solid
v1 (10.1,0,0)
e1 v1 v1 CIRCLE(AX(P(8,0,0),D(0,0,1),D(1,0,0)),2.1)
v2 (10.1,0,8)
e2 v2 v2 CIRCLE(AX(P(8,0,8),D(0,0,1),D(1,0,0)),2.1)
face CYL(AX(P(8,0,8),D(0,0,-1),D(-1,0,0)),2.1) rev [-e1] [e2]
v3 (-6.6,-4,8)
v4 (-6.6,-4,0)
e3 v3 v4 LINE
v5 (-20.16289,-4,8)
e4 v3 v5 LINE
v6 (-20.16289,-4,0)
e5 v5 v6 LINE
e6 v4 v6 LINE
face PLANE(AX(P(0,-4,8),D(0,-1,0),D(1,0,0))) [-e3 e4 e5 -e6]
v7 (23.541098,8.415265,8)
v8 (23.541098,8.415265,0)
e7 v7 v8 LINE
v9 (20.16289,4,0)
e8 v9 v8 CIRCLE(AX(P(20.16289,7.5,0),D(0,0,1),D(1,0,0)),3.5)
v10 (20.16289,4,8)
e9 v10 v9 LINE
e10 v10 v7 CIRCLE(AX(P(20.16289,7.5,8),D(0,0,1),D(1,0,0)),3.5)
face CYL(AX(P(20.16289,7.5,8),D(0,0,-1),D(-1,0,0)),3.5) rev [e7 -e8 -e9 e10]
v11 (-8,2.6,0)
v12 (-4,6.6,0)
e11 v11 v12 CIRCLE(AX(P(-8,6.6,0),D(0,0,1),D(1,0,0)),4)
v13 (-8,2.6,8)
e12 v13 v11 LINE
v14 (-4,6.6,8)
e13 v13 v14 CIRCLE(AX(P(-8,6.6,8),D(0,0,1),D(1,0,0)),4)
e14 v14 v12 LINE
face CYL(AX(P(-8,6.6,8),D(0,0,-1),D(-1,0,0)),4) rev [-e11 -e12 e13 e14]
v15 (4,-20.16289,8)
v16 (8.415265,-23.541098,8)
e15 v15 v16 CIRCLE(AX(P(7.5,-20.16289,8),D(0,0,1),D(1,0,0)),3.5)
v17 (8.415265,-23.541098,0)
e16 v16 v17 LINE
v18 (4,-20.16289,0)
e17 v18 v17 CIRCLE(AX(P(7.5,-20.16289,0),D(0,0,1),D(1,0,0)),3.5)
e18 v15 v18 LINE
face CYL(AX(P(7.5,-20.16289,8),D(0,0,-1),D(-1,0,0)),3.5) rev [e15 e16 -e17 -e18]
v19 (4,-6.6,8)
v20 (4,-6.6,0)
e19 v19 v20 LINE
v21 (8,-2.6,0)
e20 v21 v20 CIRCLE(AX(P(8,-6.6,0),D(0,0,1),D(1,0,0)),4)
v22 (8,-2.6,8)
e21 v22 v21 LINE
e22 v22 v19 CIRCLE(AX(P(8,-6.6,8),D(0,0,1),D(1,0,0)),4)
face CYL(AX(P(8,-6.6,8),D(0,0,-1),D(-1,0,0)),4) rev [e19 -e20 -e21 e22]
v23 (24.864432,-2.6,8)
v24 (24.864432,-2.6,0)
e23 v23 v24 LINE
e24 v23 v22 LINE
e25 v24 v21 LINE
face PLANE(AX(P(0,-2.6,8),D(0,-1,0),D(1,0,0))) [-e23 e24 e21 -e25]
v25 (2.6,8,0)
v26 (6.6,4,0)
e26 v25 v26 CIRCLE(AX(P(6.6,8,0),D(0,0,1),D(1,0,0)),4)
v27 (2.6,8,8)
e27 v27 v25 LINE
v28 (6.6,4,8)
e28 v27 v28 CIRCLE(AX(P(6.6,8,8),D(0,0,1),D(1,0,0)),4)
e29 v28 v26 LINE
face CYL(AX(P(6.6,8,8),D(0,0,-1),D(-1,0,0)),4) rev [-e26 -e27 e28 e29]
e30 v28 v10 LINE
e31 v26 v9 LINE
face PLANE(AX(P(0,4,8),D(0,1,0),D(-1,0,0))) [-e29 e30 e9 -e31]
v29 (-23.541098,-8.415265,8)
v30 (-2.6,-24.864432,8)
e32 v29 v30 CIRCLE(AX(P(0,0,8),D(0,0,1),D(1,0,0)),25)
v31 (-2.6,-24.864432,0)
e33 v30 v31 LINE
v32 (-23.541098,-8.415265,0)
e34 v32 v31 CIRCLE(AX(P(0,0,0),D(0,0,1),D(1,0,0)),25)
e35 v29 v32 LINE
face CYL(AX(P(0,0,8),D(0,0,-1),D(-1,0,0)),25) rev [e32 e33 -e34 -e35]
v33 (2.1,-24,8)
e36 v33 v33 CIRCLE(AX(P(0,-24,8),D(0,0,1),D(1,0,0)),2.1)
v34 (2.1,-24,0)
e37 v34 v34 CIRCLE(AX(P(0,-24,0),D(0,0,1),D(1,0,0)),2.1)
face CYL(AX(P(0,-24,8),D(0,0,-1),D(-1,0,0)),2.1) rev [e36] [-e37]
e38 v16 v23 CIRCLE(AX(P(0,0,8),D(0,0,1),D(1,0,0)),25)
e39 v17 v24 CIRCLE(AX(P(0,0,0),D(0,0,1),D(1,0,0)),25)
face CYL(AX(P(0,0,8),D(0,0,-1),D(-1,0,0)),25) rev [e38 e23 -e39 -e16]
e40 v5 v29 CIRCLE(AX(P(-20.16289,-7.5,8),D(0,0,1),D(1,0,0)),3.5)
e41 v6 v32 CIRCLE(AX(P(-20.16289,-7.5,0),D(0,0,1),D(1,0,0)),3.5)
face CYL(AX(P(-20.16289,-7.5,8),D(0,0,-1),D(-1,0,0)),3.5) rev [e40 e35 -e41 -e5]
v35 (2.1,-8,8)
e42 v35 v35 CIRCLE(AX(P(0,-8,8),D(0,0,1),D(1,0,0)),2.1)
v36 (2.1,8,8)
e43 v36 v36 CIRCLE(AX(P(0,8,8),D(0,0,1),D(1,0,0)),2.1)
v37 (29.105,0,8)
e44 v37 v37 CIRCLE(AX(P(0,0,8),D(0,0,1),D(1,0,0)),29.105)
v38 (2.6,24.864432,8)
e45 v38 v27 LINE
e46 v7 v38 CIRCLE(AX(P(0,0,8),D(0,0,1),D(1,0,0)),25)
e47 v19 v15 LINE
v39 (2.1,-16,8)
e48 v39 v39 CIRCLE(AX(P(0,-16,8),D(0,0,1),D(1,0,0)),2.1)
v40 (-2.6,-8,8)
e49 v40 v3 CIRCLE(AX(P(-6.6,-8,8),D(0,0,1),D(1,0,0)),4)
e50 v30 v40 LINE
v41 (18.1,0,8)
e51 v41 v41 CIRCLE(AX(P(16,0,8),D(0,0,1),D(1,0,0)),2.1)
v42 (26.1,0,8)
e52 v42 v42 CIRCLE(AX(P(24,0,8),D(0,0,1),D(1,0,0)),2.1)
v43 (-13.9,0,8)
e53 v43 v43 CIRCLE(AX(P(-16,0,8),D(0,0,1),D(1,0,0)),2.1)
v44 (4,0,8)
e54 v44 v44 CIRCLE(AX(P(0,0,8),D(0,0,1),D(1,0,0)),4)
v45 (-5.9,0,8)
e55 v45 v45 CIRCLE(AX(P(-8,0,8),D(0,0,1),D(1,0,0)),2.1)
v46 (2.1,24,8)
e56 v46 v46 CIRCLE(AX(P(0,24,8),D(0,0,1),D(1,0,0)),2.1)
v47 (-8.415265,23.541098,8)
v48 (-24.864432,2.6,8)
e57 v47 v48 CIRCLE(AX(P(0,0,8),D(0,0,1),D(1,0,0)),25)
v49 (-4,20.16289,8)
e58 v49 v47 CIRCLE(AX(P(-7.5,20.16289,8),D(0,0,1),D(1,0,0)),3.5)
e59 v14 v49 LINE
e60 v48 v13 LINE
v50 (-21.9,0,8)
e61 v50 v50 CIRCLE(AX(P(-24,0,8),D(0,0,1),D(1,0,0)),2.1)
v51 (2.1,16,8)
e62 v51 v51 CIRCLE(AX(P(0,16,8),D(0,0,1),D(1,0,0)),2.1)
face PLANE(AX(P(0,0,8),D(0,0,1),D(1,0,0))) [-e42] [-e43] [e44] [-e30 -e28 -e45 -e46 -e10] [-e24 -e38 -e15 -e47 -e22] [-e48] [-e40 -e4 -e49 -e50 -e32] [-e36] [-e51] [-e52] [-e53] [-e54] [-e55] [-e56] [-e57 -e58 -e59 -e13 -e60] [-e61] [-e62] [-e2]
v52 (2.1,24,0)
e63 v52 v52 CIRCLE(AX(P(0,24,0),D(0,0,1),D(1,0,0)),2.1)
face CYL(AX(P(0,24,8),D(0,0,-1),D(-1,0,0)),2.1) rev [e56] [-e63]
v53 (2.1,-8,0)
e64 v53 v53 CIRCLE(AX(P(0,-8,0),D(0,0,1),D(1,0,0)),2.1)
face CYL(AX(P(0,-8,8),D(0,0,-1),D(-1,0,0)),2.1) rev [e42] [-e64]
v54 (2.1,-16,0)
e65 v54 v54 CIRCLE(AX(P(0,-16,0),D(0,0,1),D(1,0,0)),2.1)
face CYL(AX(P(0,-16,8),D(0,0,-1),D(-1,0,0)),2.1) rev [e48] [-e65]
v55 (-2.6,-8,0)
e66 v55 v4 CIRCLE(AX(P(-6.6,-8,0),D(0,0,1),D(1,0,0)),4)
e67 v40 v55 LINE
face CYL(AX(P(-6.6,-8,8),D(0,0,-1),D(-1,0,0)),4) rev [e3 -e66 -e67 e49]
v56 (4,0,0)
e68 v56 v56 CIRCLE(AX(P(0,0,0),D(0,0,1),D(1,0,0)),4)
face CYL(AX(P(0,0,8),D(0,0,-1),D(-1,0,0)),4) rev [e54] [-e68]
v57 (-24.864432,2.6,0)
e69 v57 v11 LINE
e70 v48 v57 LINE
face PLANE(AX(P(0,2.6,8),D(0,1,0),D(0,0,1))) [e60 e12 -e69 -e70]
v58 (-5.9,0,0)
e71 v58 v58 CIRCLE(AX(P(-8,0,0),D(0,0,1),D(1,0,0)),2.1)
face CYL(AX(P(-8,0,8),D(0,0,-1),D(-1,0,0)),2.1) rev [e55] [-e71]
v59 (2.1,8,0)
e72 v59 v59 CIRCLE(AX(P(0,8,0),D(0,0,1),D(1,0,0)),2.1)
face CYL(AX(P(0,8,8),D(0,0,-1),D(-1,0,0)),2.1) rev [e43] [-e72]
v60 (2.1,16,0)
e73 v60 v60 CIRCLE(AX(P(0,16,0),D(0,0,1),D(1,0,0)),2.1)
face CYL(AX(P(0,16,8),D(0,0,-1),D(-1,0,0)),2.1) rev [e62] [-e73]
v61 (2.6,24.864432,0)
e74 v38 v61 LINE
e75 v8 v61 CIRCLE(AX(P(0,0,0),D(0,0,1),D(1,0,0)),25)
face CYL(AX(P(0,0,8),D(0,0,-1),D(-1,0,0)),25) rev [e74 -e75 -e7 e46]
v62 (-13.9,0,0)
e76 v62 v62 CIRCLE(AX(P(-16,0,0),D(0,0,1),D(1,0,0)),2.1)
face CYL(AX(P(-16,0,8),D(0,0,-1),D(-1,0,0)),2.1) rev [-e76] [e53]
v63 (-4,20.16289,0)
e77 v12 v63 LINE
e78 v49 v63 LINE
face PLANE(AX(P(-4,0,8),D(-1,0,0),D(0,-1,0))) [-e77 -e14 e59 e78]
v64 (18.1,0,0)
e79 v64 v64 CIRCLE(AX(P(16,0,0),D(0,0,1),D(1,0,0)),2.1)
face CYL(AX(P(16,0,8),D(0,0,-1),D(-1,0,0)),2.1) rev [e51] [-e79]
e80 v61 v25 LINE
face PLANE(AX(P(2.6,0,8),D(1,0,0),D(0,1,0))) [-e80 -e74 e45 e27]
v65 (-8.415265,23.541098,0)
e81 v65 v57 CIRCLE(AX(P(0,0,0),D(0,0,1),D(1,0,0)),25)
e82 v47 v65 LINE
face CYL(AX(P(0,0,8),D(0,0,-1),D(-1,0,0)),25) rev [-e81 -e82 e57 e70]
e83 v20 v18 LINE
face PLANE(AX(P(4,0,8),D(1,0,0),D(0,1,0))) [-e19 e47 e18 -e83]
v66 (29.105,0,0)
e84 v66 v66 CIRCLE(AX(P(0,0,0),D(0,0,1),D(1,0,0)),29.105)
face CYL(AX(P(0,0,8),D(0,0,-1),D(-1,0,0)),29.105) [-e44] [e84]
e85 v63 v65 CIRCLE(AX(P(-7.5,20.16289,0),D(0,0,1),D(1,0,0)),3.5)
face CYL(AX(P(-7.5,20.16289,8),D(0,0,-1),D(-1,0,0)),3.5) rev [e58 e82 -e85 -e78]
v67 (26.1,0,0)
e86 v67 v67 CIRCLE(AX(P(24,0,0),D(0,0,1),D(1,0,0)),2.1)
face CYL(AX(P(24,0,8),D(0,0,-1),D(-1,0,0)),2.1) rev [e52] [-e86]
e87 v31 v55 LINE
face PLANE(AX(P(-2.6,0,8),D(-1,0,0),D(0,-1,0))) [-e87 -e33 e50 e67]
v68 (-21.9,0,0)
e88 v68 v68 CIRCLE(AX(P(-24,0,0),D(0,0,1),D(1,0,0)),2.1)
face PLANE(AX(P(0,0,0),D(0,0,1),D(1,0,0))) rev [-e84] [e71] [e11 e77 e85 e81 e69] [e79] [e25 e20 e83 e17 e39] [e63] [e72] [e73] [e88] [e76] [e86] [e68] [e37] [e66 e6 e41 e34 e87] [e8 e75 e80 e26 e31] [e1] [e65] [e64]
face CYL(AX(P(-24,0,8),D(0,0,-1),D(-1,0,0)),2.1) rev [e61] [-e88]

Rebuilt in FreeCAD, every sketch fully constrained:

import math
import FreeCAD as App
import Part
import Sketcher

V = App.Vector

doc = App.newDocument("Part")
body = doc.addObject("PartDesign::Body", "Body")

# Sketch on XY plane
sketch1 = body.newObject("Sketcher::SketchObject", "Sketch")
sketch1.AttachmentSupport = (doc.getObject("XY_Plane"), [""])
sketch1.MapMode = "FlatFace"
sketch1.addGeometry([
    Part.Circle(V(0, 0, 0), V(0, 0, 1), 29.1),  # 0
    Part.ArcOfCircle(Part.Circle(V(0, 0, 0), V(0, 0, 1), 25), math.radians(-160), math.radians(-96)),  # 1
    Part.ArcOfCircle(Part.Circle(V(-20.2, -7.5, 0), V(0, 0, 1), 3.5), math.radians(90), math.radians(195)),  # 2
    Part.LineSegment(V(-20.2, -4, 0), V(-6.6, -4, 0)),  # 3
    Part.ArcOfCircle(Part.Circle(V(-6.6, -8, 0), V(0, 0, 1), 4), math.radians(0), math.radians(90)),  # 4
    Part.LineSegment(V(-2.6, -8, 0), V(-2.6, -24.9, 0)),  # 5
    Part.Circle(V(0, -24, 0), V(0, 0, 1), 2.1),  # 6
    Part.Circle(V(0, -16, 0), V(0, 0, 1), 2.1),  # 7
    Part.ArcOfCircle(Part.Circle(V(0, 0, 0), V(0, 0, 1), 25), math.radians(-70), math.radians(-6)),  # 8
    Part.ArcOfCircle(Part.Circle(V(7.5, -20.2, 0), V(0, 0, 1), 3.5), math.radians(180), math.radians(285)),  # 9
    Part.LineSegment(V(4, -20.2, 0), V(4, -6.6, 0)),  # 10
    Part.ArcOfCircle(Part.Circle(V(8, -6.6, 0), V(0, 0, 1), 4), math.radians(90), math.radians(180)),  # 11
    Part.LineSegment(V(8, -2.6, 0), V(24.9, -2.6, 0)),  # 12
    Part.Circle(V(0, -8, 0), V(0, 0, 1), 2.1),  # 13
    Part.Circle(V(-24, 0, 0), V(0, 0, 1), 2.1),  # 14
    Part.Circle(V(-16, 0, 0), V(0, 0, 1), 2.1),  # 15
    Part.Circle(V(-8, 0, 0), V(0, 0, 1), 2.1),  # 16
    Part.ArcOfCircle(Part.Circle(V(0, 0, 0), V(0, 0, 1), 25), math.radians(110), math.radians(174)),  # 17
    Part.ArcOfCircle(Part.Circle(V(-7.5, 20.2, 0), V(0, 0, 1), 3.5), math.radians(0), math.radians(105)),  # 18
    Part.LineSegment(V(-4, 20.2, 0), V(-4, 6.6, 0)),  # 19
    Part.ArcOfCircle(Part.Circle(V(-8, 6.6, 0), V(0, 0, 1), 4), math.radians(-90), math.radians(0)),  # 20
    Part.LineSegment(V(-8, 2.6, 0), V(-24.9, 2.6, 0)),  # 21
    Part.Circle(V(0, 0, 0), V(0, 0, 1), 4),  # 22
    Part.Circle(V(8, 0, 0), V(0, 0, 1), 2.1),  # 23
    Part.Circle(V(0, 8, 0), V(0, 0, 1), 2.1),  # 24
    Part.Circle(V(16, 0, 0), V(0, 0, 1), 2.1),  # 25
    Part.Circle(V(24, 0, 0), V(0, 0, 1), 2.1),  # 26
    Part.Circle(V(0, 16, 0), V(0, 0, 1), 2.1),  # 27
    Part.Circle(V(0, 24, 0), V(0, 0, 1), 2.1),  # 28
    Part.LineSegment(V(20.2, 4, 0), V(6.6, 4, 0)),  # 29
    Part.ArcOfCircle(Part.Circle(V(6.6, 8, 0), V(0, 0, 1), 4), math.radians(180), math.radians(270)),  # 30
    Part.LineSegment(V(2.6, 8, 0), V(2.6, 24.9, 0)),  # 31
    Part.ArcOfCircle(Part.Circle(V(0, 0, 0), V(0, 0, 1), 25), math.radians(20), math.radians(84)),  # 32
    Part.ArcOfCircle(Part.Circle(V(20.2, 7.5, 0), V(0, 0, 1), 3.5), math.radians(-90), math.radians(15)),  # 33
], False)
sketch1.addConstraint([
    Sketcher.Constraint("Coincident", 1, 1, 2, 2),
    Sketcher.Constraint("Tangent", 2, 1, 3, 1),
    Sketcher.Constraint("Tangent", 3, 2, 4, 2),
    Sketcher.Constraint("Tangent", 4, 1, 5, 1),
    Sketcher.Constraint("Coincident", 5, 2, 1, 2),
    Sketcher.Constraint("Coincident", 8, 1, 9, 2),
    Sketcher.Constraint("Tangent", 9, 1, 10, 1),
    Sketcher.Constraint("Tangent", 10, 2, 11, 2),
    Sketcher.Constraint("Tangent", 11, 1, 12, 1),
    Sketcher.Constraint("Coincident", 12, 2, 8, 2),
    Sketcher.Constraint("Coincident", 17, 1, 18, 2),
    Sketcher.Constraint("Tangent", 18, 1, 19, 1),
    Sketcher.Constraint("Tangent", 19, 2, 20, 2),
    Sketcher.Constraint("Tangent", 20, 1, 21, 1),
    Sketcher.Constraint("Coincident", 21, 2, 17, 2),
    Sketcher.Constraint("Tangent", 29, 2, 30, 2),
    Sketcher.Constraint("Tangent", 30, 1, 31, 1),
    Sketcher.Constraint("Coincident", 31, 2, 32, 2),
    Sketcher.Constraint("Coincident", 32, 1, 33, 2),
    Sketcher.Constraint("Tangent", 33, 1, 29, 1),
    Sketcher.Constraint("Horizontal", 3),
    Sketcher.Constraint("Vertical", 5),
    Sketcher.Constraint("Vertical", 10),
    Sketcher.Constraint("Horizontal", 12),
    Sketcher.Constraint("Vertical", 19),
    Sketcher.Constraint("Horizontal", 21),
    Sketcher.Constraint("Horizontal", 29),
    Sketcher.Constraint("Vertical", 31),
    Sketcher.Constraint("Coincident", 0, 3, -1, 1),
    Sketcher.Constraint("Coincident", 1, 3, -1, 1),
    Sketcher.Constraint("Coincident", 8, 3, -1, 1),
    Sketcher.Constraint("Coincident", 17, 3, -1, 1),
    Sketcher.Constraint("Coincident", 22, 3, -1, 1),
    Sketcher.Constraint("Coincident", 32, 3, -1, 1),
    Sketcher.Constraint("Equal", 6, 7),
    Sketcher.Constraint("Equal", 1, 8),
    Sketcher.Constraint("Equal", 2, 9),
    Sketcher.Constraint("Equal", 4, 11),
    Sketcher.Constraint("Equal", 7, 13),
    Sketcher.Constraint("Equal", 13, 14),
    Sketcher.Constraint("Equal", 14, 15),
    Sketcher.Constraint("Equal", 15, 16),
    Sketcher.Constraint("Equal", 8, 17),
    Sketcher.Constraint("Equal", 9, 18),
    Sketcher.Constraint("Equal", 11, 20),
    Sketcher.Constraint("Equal", 20, 22),
    Sketcher.Constraint("Equal", 16, 23),
    Sketcher.Constraint("Equal", 23, 24),
    Sketcher.Constraint("Equal", 24, 25),
    Sketcher.Constraint("Equal", 25, 26),
    Sketcher.Constraint("Equal", 26, 27),
    Sketcher.Constraint("Equal", 27, 28),
    Sketcher.Constraint("Equal", 22, 30),
    Sketcher.Constraint("Equal", 17, 32),
    Sketcher.Constraint("Equal", 18, 33),
    Sketcher.Constraint("Symmetric", 9, 3, 18, 3, -1, 1),
    Sketcher.Constraint("Symmetric", 16, 3, 23, 3, -1, 1),
    Sketcher.Constraint("Symmetric", 13, 3, 24, 3, -1, 1),
    Sketcher.Constraint("Symmetric", 15, 3, 25, 3, -1, 1),
    Sketcher.Constraint("Symmetric", 14, 3, 26, 3, -1, 1),
    Sketcher.Constraint("Symmetric", 7, 3, 27, 3, -1, 1),
    Sketcher.Constraint("Symmetric", 6, 3, 28, 3, -1, 1),
    Sketcher.Constraint("Symmetric", 4, 3, 30, 3, -1, 1),
    Sketcher.Constraint("PointOnObject", 6, 3, -2),
    Sketcher.Constraint("PointOnObject", 7, 3, -2),
    Sketcher.Constraint("PointOnObject", 13, 3, -2),
    Sketcher.Constraint("PointOnObject", 14, 3, -1),
    Sketcher.Constraint("PointOnObject", 15, 3, -1),
    Sketcher.Constraint("PointOnObject", 16, 3, -1),
    Sketcher.Constraint("Horizontal", 4, 3, 13, 3),
    Sketcher.Constraint("Vertical", 16, 3, 20, 3),
    Sketcher.Constraint("Equal", 12, 21),
    Sketcher.Constraint("Equal", 3, 29),
    Sketcher.Constraint("Equal", 21, 5),
    Sketcher.Constraint("Equal", 29, 10),
    Sketcher.Constraint("Diameter", 22, 8.0),
    Sketcher.Constraint("Radius", 1, 25.0),
    Sketcher.Constraint("Diameter", 6, 4.2),
    Sketcher.Constraint("Radius", 2, 3.5),
    Sketcher.Constraint("Diameter", 0, 58.21),
    Sketcher.Constraint("DistanceY", 4, 3, -1, 1, 8.0),
    Sketcher.Constraint("DistanceY", 6, 3, -1, 1, 24.0),
    Sketcher.Constraint("DistanceY", 7, 3, -1, 1, 16.0),
    Sketcher.Constraint("DistanceX", -1, 1, 11, 3, 8.0),
    Sketcher.Constraint("DistanceX", 14, 3, -1, 1, 24.0),
    Sketcher.Constraint("DistanceX", 15, 3, -1, 1, 16.0),
    Sketcher.Constraint("DistanceX", 4, 3, -1, 1, 6.6),
    Sketcher.Constraint("DistanceX", 3, 1, 3, 2, 13.56289),
])
pad1 = body.newObject("PartDesign::Pad", "Pad")
pad1.Profile = sketch1
pad1.Length = 8

doc.recompute()
